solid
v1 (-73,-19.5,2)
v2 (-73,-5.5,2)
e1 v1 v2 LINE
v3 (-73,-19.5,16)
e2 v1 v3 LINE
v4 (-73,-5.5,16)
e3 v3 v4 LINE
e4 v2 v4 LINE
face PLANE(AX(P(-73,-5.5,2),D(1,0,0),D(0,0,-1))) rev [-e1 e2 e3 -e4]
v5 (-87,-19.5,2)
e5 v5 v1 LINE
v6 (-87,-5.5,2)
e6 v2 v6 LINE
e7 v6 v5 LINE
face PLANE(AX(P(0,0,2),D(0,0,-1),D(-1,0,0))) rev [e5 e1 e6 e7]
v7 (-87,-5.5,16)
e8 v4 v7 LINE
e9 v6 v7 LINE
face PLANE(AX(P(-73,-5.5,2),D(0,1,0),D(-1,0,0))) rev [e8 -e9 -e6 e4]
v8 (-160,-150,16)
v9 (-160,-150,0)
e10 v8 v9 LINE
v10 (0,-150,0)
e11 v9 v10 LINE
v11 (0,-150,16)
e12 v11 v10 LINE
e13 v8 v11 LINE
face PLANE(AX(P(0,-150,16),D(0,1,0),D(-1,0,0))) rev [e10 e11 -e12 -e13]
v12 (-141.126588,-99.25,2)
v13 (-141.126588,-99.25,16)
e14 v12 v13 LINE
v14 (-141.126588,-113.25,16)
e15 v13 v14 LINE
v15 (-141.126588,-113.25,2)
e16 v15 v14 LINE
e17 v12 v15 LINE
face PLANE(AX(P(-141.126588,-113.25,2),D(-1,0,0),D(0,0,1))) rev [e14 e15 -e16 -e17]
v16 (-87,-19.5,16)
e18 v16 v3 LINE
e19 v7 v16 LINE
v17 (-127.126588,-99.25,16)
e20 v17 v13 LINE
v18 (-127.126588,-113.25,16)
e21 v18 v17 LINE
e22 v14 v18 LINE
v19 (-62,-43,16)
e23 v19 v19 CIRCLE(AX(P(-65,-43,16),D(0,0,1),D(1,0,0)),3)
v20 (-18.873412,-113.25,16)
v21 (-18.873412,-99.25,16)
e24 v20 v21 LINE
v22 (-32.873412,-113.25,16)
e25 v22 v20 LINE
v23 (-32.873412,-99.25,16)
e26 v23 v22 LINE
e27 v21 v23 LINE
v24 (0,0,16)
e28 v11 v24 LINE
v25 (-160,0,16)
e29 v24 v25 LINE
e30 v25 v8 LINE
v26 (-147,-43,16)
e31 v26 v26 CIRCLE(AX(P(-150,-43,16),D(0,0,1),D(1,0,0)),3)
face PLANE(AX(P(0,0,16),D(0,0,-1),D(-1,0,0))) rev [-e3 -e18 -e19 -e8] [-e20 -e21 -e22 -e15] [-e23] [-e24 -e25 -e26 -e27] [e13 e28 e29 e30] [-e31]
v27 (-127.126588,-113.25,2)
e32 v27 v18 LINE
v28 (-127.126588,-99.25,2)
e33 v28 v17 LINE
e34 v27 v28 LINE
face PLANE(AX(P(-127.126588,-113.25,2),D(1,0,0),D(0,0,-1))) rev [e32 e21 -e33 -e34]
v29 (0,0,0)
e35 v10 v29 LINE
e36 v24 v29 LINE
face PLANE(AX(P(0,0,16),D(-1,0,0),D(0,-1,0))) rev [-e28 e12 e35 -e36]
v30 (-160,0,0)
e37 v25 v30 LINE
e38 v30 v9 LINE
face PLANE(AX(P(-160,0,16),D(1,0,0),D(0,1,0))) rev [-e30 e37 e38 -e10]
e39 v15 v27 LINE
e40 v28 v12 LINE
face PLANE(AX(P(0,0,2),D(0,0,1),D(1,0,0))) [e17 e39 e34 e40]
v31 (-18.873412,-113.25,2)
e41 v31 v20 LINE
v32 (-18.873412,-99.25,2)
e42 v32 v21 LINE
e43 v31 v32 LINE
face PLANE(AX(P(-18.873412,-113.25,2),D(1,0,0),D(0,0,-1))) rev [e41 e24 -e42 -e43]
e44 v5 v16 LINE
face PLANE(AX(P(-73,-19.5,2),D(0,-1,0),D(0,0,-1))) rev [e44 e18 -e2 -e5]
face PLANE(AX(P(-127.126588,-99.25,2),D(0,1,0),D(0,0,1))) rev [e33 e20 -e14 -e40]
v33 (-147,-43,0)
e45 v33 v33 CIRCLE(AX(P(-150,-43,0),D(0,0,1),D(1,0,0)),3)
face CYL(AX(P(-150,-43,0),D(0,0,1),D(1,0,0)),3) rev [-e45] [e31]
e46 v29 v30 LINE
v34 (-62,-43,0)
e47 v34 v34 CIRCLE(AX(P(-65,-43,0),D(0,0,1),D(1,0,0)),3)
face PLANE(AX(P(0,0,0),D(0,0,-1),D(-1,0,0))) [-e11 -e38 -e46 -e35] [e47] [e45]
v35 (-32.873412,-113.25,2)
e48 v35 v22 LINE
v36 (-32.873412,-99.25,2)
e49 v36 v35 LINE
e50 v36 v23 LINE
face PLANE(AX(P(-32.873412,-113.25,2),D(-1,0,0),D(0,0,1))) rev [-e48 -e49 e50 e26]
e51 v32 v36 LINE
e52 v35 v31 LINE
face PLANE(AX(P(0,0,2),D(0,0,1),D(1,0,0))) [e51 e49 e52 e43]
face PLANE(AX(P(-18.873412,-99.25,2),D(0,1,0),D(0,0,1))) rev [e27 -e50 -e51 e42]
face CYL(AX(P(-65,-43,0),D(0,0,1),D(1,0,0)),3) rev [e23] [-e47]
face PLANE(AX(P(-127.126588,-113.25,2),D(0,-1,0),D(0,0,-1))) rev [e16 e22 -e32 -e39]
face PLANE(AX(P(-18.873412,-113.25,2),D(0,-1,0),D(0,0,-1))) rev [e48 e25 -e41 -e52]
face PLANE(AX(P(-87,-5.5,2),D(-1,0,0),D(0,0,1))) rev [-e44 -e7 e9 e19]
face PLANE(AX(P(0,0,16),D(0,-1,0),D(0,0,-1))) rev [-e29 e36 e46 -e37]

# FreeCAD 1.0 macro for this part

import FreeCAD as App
import Part
import Sketcher


def add_polygon(sketch, points):
    """Adds a closed chain of lines whose ends are joined by coincident constraints."""
    first, n = sketch.GeometryCount, len(points)
    for a, b in zip(points, points[1:] + points[:1]):
        sketch.addGeometry(Part.LineSegment(App.Vector(*a, 0), App.Vector(*b, 0)), False)
    for i in range(n):
        sketch.addConstraint(Sketcher.Constraint("Coincident", first + i, 2, first + (i + 1) % n, 1))

doc = App.newDocument("Part")
body = doc.addObject("PartDesign::Body", "Body")

sketch1 = body.newObject("Sketcher::SketchObject", "Sketch")
sketch1.AttachmentSupport = (doc.getObject("XY_Plane"), [""])
sketch1.MapMode = "FlatFace"
add_polygon(sketch1, [(-160, 0), (-160, -150), (0, -150), (0, 0)])
sketch1.addConstraint([
    Sketcher.Constraint("Vertical", 0),
    Sketcher.Constraint("Horizontal", 1),
    Sketcher.Constraint("Vertical", 2),
    Sketcher.Constraint("Horizontal", 3),
    Sketcher.Constraint("Coincident", 2, 2, -1, 1),
    Sketcher.Constraint("DistanceX", 1, 1, 1, 2, 160.0),
    Sketcher.Constraint("DistanceY", 0, 2, 0, 1, 150.0),
])
pad1 = body.newObject("PartDesign::Pad", "Pad")
pad1.Profile = sketch1
pad1.Length = 16

sketch2 = body.newObject("Sketcher::SketchObject", "Sketch001")
sketch2.AttachmentSupport = (doc.getObject("XY_Plane"), [""])
sketch2.MapMode = "FlatFace"
sketch2.AttachmentOffset = App.Placement(App.Vector(0, 0, 16), App.Rotation())
add_polygon(sketch2, [(-87, -6), (-87, -20), (-73, -20), (-73, -6)])
add_polygon(sketch2, [(-141, -99), (-141, -113), (-127, -113), (-127, -99)])
add_polygon(sketch2, [(-33, -99), (-33, -113), (-19, -113), (-19, -99)])
sketch2.addConstraint([
    Sketcher.Constraint("Vertical", 0),
    Sketcher.Constraint("Horizontal", 1),
    Sketcher.Constraint("Vertical", 2),
    Sketcher.Constraint("Horizontal", 3),
    Sketcher.Constraint("Vertical", 4),
    Sketcher.Constraint("Horizontal", 5),
    Sketcher.Constraint("Vertical", 6),
    Sketcher.Constraint("Horizontal", 7),
    Sketcher.Constraint("Vertical", 8),
    Sketcher.Constraint("Horizontal", 9),
    Sketcher.Constraint("Vertical", 10),
    Sketcher.Constraint("Horizontal", 11),
    Sketcher.Constraint("Horizontal", 5, 2, 8, 2),
    Sketcher.Constraint("Horizontal", 7, 2, 10, 2),
    Sketcher.Constraint("Equal", 3, 5),
    Sketcher.Constraint("Equal", 7, 9),
    Sketcher.Constraint("Equal", 11, 0),
    Sketcher.Constraint("Equal", 2, 4),
    Sketcher.Constraint("DistanceX", 1, 1, 1, 2, 14.0),
    Sketcher.Constraint("DistanceX", 0, 2, -1, 1, 87.0),
    Sketcher.Constraint("DistanceY", 0, 2, -1, 1, 19.5),
    Sketcher.Constraint("DistanceY", 4, 2, -1, 1, 113.25),
    Sketcher.Constraint("DistanceX", 4, 2, -1, 1, 141.126588),
    Sketcher.Constraint("DistanceX", 8, 2, -1, 1, 32.873412),
])
pocket1 = body.newObject("PartDesign::Pocket", "Pocket")
pocket1.Profile = sketch2
pocket1.Length = 14

sketch3 = body.newObject("Sketcher::SketchObject", "Sketch002")
sketch3.AttachmentSupport = (doc.getObject("XY_Plane"), [""])
sketch3.MapMode = "FlatFace"
sketch3.AttachmentOffset = App.Placement(App.Vector(0, 0, 16), App.Rotation())
sketch3.addGeometry([
    Part.Circle(App.Vector(-65, -43, 0), App.Vector(0, 0, 1), 3),
    Part.Circle(App.Vector(-150, -43, 0), App.Vector(0, 0, 1), 3),
], False)
sketch3.addConstraint([
    Sketcher.Constraint("Equal", 0, 1),
    Sketcher.Constraint("Horizontal", 0, 3, 1, 3),
    Sketcher.Constraint("Diameter", 0, 6.0),
    Sketcher.Constraint("DistanceX", 0, 3, -1, 1, 65.0),
    Sketcher.Constraint("DistanceY", 0, 3, -1, 1, 43.0),
    Sketcher.Constraint("DistanceX", 1, 3, -1, 1, 150.0),
])
pocket2 = body.newObject("PartDesign::Pocket", "Pocket001")
pocket2.Profile = sketch3
pocket2.Type = "ThroughAll"

doc.recompute()
